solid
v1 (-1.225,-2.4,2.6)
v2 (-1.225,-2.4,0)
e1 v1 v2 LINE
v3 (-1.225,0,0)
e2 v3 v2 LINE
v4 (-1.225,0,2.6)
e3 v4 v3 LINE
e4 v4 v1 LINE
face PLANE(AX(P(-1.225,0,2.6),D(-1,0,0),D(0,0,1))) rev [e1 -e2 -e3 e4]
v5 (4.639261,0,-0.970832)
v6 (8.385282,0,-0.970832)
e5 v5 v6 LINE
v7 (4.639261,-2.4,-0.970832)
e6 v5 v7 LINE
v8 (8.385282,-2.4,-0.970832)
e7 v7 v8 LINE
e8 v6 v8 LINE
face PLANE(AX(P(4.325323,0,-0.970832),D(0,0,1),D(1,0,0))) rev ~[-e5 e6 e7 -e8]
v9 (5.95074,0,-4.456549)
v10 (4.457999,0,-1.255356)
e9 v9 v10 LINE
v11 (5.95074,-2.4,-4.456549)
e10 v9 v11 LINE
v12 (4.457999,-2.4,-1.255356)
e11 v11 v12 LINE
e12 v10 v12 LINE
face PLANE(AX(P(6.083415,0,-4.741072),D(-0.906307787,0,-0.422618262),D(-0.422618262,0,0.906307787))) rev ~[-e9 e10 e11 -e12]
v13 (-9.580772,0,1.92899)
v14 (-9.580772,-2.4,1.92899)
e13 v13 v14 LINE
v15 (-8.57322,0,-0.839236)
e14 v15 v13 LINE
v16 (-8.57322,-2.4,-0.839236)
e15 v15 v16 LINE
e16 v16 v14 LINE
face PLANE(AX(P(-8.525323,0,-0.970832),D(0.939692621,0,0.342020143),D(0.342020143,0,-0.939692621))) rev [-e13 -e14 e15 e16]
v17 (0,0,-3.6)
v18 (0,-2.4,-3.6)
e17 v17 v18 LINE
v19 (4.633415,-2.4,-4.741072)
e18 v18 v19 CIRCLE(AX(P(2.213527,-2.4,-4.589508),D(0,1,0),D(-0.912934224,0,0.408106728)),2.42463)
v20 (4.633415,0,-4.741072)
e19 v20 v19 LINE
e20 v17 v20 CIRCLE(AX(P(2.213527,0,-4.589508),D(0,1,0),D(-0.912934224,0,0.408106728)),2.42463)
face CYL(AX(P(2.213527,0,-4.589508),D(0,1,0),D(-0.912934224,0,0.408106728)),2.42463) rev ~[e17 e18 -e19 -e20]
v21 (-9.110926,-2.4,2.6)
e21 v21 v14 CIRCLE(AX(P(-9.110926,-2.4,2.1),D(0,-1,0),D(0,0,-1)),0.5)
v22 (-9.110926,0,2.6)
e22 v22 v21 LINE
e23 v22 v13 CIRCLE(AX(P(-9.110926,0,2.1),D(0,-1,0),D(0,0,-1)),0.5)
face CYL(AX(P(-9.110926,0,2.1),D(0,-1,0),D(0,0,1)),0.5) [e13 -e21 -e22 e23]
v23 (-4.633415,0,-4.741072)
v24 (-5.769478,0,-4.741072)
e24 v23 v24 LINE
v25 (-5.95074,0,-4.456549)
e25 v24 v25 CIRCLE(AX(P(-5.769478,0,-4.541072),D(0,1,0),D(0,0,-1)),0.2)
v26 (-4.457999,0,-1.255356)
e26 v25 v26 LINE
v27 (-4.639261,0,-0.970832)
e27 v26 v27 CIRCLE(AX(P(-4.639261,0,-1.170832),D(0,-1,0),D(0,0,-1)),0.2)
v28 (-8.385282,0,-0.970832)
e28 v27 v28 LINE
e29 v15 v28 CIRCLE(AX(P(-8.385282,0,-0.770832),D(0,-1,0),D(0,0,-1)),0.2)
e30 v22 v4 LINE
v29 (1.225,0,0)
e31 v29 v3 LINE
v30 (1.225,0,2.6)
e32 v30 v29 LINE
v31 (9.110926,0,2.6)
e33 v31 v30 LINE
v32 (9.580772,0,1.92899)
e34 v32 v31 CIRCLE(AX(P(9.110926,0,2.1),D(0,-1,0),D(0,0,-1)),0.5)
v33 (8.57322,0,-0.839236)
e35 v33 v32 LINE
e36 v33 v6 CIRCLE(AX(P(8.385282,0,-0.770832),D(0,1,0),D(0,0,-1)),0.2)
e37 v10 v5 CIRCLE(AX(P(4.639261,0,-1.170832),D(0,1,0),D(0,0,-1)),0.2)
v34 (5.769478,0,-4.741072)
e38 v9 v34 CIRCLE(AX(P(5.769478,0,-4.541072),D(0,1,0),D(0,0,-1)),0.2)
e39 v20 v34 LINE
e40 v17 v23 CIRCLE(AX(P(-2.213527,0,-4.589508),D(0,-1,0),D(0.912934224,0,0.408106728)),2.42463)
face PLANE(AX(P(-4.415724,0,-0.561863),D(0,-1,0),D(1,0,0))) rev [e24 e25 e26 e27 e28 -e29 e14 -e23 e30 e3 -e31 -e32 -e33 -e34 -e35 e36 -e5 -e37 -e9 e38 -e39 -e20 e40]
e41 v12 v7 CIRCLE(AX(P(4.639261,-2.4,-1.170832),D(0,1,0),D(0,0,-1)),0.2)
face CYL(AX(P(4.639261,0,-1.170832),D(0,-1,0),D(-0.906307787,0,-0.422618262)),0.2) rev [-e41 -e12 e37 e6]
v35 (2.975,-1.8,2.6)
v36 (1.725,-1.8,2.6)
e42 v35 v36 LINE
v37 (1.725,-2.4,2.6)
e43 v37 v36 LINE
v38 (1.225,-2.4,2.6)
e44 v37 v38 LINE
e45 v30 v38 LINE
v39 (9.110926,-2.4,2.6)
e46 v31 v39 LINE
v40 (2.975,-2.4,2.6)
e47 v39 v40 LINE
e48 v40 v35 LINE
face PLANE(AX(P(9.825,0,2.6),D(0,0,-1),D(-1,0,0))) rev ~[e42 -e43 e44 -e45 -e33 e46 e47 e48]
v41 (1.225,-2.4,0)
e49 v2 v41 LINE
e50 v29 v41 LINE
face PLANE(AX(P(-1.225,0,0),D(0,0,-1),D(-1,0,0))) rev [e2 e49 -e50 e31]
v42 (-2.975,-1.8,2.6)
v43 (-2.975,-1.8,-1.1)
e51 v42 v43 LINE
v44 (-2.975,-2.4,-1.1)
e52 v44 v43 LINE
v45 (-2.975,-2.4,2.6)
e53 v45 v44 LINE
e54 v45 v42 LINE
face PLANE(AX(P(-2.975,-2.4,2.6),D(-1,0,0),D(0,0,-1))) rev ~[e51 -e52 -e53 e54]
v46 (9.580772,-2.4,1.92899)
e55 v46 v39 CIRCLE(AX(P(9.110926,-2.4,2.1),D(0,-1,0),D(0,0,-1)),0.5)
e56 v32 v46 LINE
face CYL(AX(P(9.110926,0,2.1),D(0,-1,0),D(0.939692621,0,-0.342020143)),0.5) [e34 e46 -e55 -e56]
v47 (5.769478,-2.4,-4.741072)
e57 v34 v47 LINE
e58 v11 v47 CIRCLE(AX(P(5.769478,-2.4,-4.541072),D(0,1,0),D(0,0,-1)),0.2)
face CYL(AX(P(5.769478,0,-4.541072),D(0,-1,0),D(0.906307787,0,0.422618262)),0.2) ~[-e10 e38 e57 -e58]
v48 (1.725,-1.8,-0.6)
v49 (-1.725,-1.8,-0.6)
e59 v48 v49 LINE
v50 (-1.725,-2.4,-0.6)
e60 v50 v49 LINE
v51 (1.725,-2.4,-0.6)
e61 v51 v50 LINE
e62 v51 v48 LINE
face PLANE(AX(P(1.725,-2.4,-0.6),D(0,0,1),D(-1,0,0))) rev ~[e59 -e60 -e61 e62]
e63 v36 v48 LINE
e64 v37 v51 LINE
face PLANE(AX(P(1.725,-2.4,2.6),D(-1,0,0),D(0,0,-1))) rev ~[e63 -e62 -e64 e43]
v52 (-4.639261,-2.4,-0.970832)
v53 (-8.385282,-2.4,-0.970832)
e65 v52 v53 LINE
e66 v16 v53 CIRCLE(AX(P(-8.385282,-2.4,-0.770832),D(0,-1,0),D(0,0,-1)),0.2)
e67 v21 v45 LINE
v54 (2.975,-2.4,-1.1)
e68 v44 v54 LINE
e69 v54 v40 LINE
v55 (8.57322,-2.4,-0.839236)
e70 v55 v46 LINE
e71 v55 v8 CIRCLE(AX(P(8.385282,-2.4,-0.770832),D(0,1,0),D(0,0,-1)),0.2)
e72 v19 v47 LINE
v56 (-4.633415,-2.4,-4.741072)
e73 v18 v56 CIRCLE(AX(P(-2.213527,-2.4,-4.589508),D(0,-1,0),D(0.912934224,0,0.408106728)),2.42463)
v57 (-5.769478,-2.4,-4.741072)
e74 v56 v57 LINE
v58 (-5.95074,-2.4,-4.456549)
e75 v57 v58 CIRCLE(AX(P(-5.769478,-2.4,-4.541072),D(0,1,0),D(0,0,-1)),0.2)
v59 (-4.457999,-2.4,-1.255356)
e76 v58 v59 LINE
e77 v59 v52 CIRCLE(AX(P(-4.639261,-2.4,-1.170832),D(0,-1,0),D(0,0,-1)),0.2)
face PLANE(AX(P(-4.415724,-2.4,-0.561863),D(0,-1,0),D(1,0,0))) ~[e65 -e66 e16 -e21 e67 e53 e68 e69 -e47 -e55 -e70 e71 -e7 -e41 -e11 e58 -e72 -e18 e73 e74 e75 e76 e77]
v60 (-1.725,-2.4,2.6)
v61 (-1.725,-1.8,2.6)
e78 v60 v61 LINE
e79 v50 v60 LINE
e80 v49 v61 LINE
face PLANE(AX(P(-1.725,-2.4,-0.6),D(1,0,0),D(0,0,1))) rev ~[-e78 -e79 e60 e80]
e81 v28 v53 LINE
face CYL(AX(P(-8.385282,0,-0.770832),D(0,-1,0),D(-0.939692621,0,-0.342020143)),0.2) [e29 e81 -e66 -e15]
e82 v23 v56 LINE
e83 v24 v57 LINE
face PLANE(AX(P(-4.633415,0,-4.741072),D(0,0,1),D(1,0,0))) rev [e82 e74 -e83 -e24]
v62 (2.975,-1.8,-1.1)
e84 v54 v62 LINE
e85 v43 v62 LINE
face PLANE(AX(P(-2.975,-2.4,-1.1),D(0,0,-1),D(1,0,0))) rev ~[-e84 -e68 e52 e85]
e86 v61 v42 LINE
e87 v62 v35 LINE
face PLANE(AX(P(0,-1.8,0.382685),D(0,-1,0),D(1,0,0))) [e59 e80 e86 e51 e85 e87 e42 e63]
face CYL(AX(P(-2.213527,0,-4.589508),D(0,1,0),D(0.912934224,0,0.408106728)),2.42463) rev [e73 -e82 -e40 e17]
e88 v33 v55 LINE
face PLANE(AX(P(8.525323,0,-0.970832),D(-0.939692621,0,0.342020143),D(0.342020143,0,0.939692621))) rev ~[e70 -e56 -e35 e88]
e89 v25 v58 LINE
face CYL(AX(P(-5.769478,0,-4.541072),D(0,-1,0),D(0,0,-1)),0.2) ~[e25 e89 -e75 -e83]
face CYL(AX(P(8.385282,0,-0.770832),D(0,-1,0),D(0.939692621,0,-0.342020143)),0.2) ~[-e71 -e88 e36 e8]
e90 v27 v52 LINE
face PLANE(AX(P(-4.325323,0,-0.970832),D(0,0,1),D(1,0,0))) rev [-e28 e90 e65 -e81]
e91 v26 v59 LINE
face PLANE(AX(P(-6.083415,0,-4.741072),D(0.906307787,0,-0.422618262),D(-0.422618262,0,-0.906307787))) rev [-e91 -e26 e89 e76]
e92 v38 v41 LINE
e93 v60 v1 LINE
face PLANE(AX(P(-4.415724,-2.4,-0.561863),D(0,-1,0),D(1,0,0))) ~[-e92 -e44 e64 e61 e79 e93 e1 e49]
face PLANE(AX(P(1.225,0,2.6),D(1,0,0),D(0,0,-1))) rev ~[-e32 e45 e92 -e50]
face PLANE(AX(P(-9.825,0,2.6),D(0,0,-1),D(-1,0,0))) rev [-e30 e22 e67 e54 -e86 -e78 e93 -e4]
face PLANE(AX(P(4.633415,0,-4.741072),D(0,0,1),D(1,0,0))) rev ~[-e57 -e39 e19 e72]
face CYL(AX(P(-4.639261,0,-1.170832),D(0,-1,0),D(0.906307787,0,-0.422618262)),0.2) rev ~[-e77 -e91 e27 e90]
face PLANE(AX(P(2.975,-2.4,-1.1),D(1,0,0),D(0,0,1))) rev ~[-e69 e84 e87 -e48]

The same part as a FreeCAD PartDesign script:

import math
import FreeCAD as App
import Part
import Sketcher

V = App.Vector
Q = App.Units.Quantity


def edges_at(feature, points):
    """Names of the edges that pass closest to the given points."""
    edges = feature.Shape.Edges
    near = lambda p: min(range(len(edges)), key=lambda i: edges[i].distToShape(Part.Vertex(*p))[0])
    return sorted({f"Edge{near(p) + 1}" for p in points})

doc = App.newDocument("Part")
params = doc.addObject("Spreadsheet::Sheet", "Params")
for row, (alias, value) in enumerate([
    ("sketch1_width", "4.2 mm"),
    ("sketch1_width2", "8.6 mm"),
    ("sketch1_height", "3.6 mm"),
    ("sketch1_height2", "2.6 mm"),
    ("sketch1_length", "3.8 mm"),
    ("pad1_length", "2.4 mm"),
    ("fillet_radius", "0.5 mm"),
    ("fillet2_radius", "0.2 mm"),
    ("fillet3_radius", "0.2 mm"),
    ("fillet4_radius", "0.2 mm"),
    ("sketch2_height", "3.2 mm"),
    ("sketch2_height2", "3.7 mm"),
    ("sketch2_width", "3.45 mm"),
    ("sketch2_width2", "1.25 mm"),
    ("pocket1_length", "0.6 mm"),
], start=1):
    params.set(f"A{row}", alias)
    params.set(f"B{row}", "=" + value)
    params.setAlias(f"B{row}", alias)

body = doc.addObject("PartDesign::Body", "Body")

# Sketch on XZ plane
sketch1 = body.newObject("Sketcher::SketchObject", "Sketch")
sketch1.AttachmentSupport = (doc.getObject("XZ_Plane"), [""])
sketch1.MapMode = "FlatFace"
sketch1.addGeometry(Part.LineSegment(V(1.2, 0, 0), V(0, 0, 0)), False)
sketch1.addGeometry(Part.LineSegment(V(0, 0, 0), V(0, -3.6, 0)), False)
sketch1.addGeometry(Part.ArcOfCircle(Part.Circle(V(2.2, -4.6, 0), V(0, 0, 1), 2.4), math.radians(-4), math.radians(156)), False)
sketch1.addGeometry(Part.LineSegment(V(4.6, -4.7, 0), V(6.1, -4.7, 0)), False)
sketch1.addGeometry(Part.LineSegment(V(6.1, -4.7, 0), V(4.3, -1, 0)), False)
sketch1.addGeometry(Part.LineSegment(V(4.3, -1, 0), V(8.5, -1, 0)), False)
sketch1.addGeometry(Part.LineSegment(V(8.5, -1, 0), V(9.8, 2.6, 0)), False)
sketch1.addGeometry(Part.LineSegment(V(9.8, 2.6, 0), V(1.2, 2.6, 0)), False)
sketch1.addGeometry(Part.LineSegment(V(1.2, 2.6, 0), V(1.2, 0, 0)), False)
sketch1.addConstraint(Sketcher.Constraint("Coincident", 0, 2, 1, 1))
sketch1.addConstraint(Sketcher.Constraint("Coincident", 1, 2, 2, 2))
sketch1.addConstraint(Sketcher.Constraint("Coincident", 2, 1, 3, 1))
sketch1.addConstraint(Sketcher.Constraint("Coincident", 3, 2, 4, 1))
sketch1.addConstraint(Sketcher.Constraint("Coincident", 4, 2, 5, 1))
sketch1.addConstraint(Sketcher.Constraint("Coincident", 5, 2, 6, 1))
sketch1.addConstraint(Sketcher.Constraint("Coincident", 6, 2, 7, 1))
sketch1.addConstraint(Sketcher.Constraint("Coincident", 7, 2, 8, 1))
sketch1.addConstraint(Sketcher.Constraint("Coincident", 8, 2, 0, 1))
sketch1.addConstraint(Sketcher.Constraint("Horizontal", 0))
sketch1.addConstraint(Sketcher.Constraint("Vertical", 1))
sketch1.addConstraint(Sketcher.Constraint("Horizontal", 3))
sketch1.addConstraint(Sketcher.Constraint("Horizontal", 5))
sketch1.addConstraint(Sketcher.Constraint("Horizontal", 7))
sketch1.addConstraint(Sketcher.Constraint("Vertical", 8))
sketch1.addConstraint(Sketcher.Constraint("Coincident", 0, 2, -1, 1))
sketch1.addConstraint(Sketcher.Constraint("Angle", 4, Q("115 deg")))
sketch1.addConstraint(Sketcher.Constraint("Angle", 6, Q("70 deg")))
sketch1.addConstraint(Sketcher.Constraint("DistanceX", 5, 1, 5, 2, Q("4.2 mm")))
sketch1.addConstraint(Sketcher.Constraint("DistanceX", 7, 2, 7, 1, Q("8.6 mm")))
sketch1.addConstraint(Sketcher.Constraint("DistanceY", 1, 2, 1, 1, Q("3.6 mm")))
sketch1.addConstraint(Sketcher.Constraint("DistanceY", 8, 2, 8, 1, Q("2.6 mm")))
sketch1.addConstraint(Sketcher.Constraint("Distance", 6, Q("3.8 mm")))
sketch1.addConstraint(Sketcher.Constraint("DistanceX", 3, 1, 3, 2, Q("1.45 mm")))
sketch1.addConstraint(Sketcher.Constraint("Distance", 4, Q("4.16 mm")))
sketch1.addConstraint(Sketcher.Constraint("DistanceX", 0, 2, 0, 1, Q("1.225 mm")))
sketch1.addConstraint(Sketcher.Constraint("Radius", 2, Q("2.42463 mm")))
sketch1.setExpression("Constraints[18]", "Params.sketch1_width")
sketch1.setExpression("Constraints[19]", "Params.sketch1_width2")
sketch1.setExpression("Constraints[20]", "Params.sketch1_height")
sketch1.setExpression("Constraints[21]", "Params.sketch1_height2")
sketch1.setExpression("Constraints[22]", "Params.sketch1_length")
pad1 = body.newObject("PartDesign::Pad", "Pad")
pad1.Profile = sketch1
pad1.setExpression("Length", "Params.pad1_length")
body2 = doc.addObject("PartDesign::Body", "Body001")
doc.recompute()

body2.BaseFeature = body
doc.recompute()

mirroring = doc.addObject("Part::Mirroring", "Mirroring")
mirroring.Source = body
mirroring.Base = V(0, -1.2, -1.8)
mirroring.Normal = V(-1, 0, 0)
body3 = doc.addObject("PartDesign::Body", "Body002")
body3.BaseFeature = mirroring
boolean = body2.newObject("PartDesign::Boolean", "Boolean")
boolean.Type = "Fuse"
boolean.addObjects([body3])
doc.recompute()

fillet = body2.newObject("PartDesign::Fillet", "Fillet")
fillet.Base = (boolean, edges_at(boolean, [(-9.825, -1.2, 2.6), (9.825, -1.2, 2.6)]))
fillet.setExpression("Radius", "Params.fillet_radius")
doc.recompute()

fillet2 = body2.newObject("PartDesign::Fillet", "Fillet001")
fillet2.Base = (fillet, edges_at(fillet, [(-8.525, -1.2, -0.971), (8.525, -1.2, -0.971)]))
fillet2.setExpression("Radius", "Params.fillet2_radius")
doc.recompute()

fillet3 = body2.newObject("PartDesign::Fillet", "Fillet002")
fillet3.Base = (fillet2, edges_at(fillet2, [(-6.083, -1.2, -4.741), (6.083, -1.2, -4.741)]))
fillet3.setExpression("Radius", "Params.fillet3_radius")
doc.recompute()

fillet4 = body2.newObject("PartDesign::Fillet", "Fillet003")
fillet4.Base = (fillet3, edges_at(fillet3, [(-4.325, -1.2, -0.971), (4.325, -1.2, -0.971)]))
fillet4.setExpression("Radius", "Params.fillet4_radius")

# Sketch on XZ plane
sketch2 = body2.newObject("Sketcher::SketchObject", "Sketch001")
sketch2.AttachmentSupport = (doc.getObject("XZ_Plane001"), [""])
sketch2.MapMode = "FlatFace"
sketch2.AttachmentOffset = App.Placement(V(0, 0, 2.4), App.Rotation())
sketch2.addGeometry(Part.LineSegment(V(1.7, -0.6, 0), V(-1.7, -0.6, 0)), False)
sketch2.addGeometry(Part.LineSegment(V(-1.7, -0.6, 0), V(-1.7, 2.6, 0)), False)
sketch2.addGeometry(Part.LineSegment(V(-1.7, 2.6, 0), V(-3, 2.6, 0)), False)
sketch2.addGeometry(Part.LineSegment(V(-3, 2.6, 0), V(-3, -1.1, 0)), False)
sketch2.addGeometry(Part.LineSegment(V(-3, -1.1, 0), V(3, -1.1, 0)), False)
sketch2.addGeometry(Part.LineSegment(V(3, -1.1, 0), V(3, 2.6, 0)), False)
sketch2.addGeometry(Part.LineSegment(V(3, 2.6, 0), V(1.7, 2.6, 0)), False)
sketch2.addGeometry(Part.LineSegment(V(1.7, 2.6, 0), V(1.7, -0.6, 0)), False)
sketch2.addConstraint(Sketcher.Constraint("Coincident", 0, 2, 1, 1))
sketch2.addConstraint(Sketcher.Constraint("Coincident", 1, 2, 2, 1))
sketch2.addConstraint(Sketcher.Constraint("Coincident", 2, 2, 3, 1))
sketch2.addConstraint(Sketcher.Constraint("Coincident", 3, 2, 4, 1))
sketch2.addConstraint(Sketcher.Constraint("Coincident", 4, 2, 5, 1))
sketch2.addConstraint(Sketcher.Constraint("Coincident", 5, 2, 6, 1))
sketch2.addConstraint(Sketcher.Constraint("Coincident", 6, 2, 7, 1))
sketch2.addConstraint(Sketcher.Constraint("Coincident", 7, 2, 0, 1))
sketch2.addConstraint(Sketcher.Constraint("Horizontal", 0))
sketch2.addConstraint(Sketcher.Constraint("Vertical", 1))
sketch2.addConstraint(Sketcher.Constraint("Horizontal", 2))
sketch2.addConstraint(Sketcher.Constraint("Vertical", 3))
sketch2.addConstraint(Sketcher.Constraint("Horizontal", 4))
sketch2.addConstraint(Sketcher.Constraint("Vertical", 5))
sketch2.addConstraint(Sketcher.Constraint("Horizontal", 6))
sketch2.addConstraint(Sketcher.Constraint("Vertical", 7))
sketch2.addConstraint(Sketcher.Constraint("Symmetric", 2, 2, 5, 2, -2))
sketch2.addConstraint(Sketcher.Constraint("Equal", 2, 6))
sketch2.addConstraint(Sketcher.Constraint("DistanceY", 1, 1, 1, 2, Q("3.2 mm")))
sketch2.addConstraint(Sketcher.Constraint("DistanceY", 3, 2, 3, 1, Q("3.7 mm")))
sketch2.addConstraint(Sketcher.Constraint("DistanceX", 0, 2, 0, 1, Q("3.45 mm")))
sketch2.addConstraint(Sketcher.Constraint("DistanceX", 2, 2, 2, 1, Q("1.25 mm")))
sketch2.addConstraint(Sketcher.Constraint("DistanceY", 0, 2, -1, 1, Q("0.6 mm")))
sketch2.setExpression("Constraints[18]", "Params.sketch2_height")
sketch2.setExpression("Constraints[19]", "Params.sketch2_height2")
sketch2.setExpression("Constraints[20]", "Params.sketch2_width")
sketch2.setExpression("Constraints[21]", "Params.sketch2_width2")
pocket1 = body2.newObject("PartDesign::Pocket", "Pocket")
pocket1.Profile = sketch2
pocket1.setExpression("Length", "Params.pocket1_length")
mirroring.Visibility = False

doc.recompute()
